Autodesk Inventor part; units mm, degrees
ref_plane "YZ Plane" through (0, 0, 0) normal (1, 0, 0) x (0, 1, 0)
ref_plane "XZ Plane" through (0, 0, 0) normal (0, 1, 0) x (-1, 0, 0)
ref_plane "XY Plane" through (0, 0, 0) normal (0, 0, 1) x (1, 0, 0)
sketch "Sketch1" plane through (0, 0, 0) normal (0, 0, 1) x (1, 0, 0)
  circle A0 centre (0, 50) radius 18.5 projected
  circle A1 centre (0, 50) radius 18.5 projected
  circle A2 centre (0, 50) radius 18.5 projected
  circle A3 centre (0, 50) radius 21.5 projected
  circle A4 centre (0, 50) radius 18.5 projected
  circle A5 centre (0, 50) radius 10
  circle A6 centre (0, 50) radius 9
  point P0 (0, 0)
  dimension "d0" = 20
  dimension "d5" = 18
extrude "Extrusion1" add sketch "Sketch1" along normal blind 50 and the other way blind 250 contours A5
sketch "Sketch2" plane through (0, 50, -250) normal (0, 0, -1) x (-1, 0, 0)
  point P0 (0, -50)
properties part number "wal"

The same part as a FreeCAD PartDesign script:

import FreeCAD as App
import Part
import Sketcher

doc = App.newDocument("Part")
body = doc.addObject("PartDesign::Body", "Body")

sketch1 = doc.addObject("Sketcher::SketchObject", "Sketch")
body.addObject(sketch1)
sketch1.AttachmentSupport = (doc.XY_Plane, [""])
sketch1.MapMode = "FlatFace"
sketch1.addGeometry([
    Part.Circle(App.Vector(0, 50, 0), App.Vector(0, 0, 1), 10),
    Part.Circle(App.Vector(0, 50, 0), App.Vector(0, 0, 1), 9),
], False)
sketch1.addConstraint([
    Sketcher.Constraint("Coincident", 1, 3, 0, 3),
    Sketcher.Constraint("PointOnObject", 0, 3, -2),
    Sketcher.Constraint("Diameter", 0, 20.0),
    Sketcher.Constraint("Diameter", 1, 18.0),
    Sketcher.Constraint("DistanceY", -1, 1, 0, 3, 50.0),
])
pad1 = doc.addObject("PartDesign::Pad", "Pad")
body.addObject(pad1)
pad1.Profile = sketch1
pad1.Type = "TwoLengths"
pad1.Length = 50
pad1.Length2 = 250

doc.recompute()
